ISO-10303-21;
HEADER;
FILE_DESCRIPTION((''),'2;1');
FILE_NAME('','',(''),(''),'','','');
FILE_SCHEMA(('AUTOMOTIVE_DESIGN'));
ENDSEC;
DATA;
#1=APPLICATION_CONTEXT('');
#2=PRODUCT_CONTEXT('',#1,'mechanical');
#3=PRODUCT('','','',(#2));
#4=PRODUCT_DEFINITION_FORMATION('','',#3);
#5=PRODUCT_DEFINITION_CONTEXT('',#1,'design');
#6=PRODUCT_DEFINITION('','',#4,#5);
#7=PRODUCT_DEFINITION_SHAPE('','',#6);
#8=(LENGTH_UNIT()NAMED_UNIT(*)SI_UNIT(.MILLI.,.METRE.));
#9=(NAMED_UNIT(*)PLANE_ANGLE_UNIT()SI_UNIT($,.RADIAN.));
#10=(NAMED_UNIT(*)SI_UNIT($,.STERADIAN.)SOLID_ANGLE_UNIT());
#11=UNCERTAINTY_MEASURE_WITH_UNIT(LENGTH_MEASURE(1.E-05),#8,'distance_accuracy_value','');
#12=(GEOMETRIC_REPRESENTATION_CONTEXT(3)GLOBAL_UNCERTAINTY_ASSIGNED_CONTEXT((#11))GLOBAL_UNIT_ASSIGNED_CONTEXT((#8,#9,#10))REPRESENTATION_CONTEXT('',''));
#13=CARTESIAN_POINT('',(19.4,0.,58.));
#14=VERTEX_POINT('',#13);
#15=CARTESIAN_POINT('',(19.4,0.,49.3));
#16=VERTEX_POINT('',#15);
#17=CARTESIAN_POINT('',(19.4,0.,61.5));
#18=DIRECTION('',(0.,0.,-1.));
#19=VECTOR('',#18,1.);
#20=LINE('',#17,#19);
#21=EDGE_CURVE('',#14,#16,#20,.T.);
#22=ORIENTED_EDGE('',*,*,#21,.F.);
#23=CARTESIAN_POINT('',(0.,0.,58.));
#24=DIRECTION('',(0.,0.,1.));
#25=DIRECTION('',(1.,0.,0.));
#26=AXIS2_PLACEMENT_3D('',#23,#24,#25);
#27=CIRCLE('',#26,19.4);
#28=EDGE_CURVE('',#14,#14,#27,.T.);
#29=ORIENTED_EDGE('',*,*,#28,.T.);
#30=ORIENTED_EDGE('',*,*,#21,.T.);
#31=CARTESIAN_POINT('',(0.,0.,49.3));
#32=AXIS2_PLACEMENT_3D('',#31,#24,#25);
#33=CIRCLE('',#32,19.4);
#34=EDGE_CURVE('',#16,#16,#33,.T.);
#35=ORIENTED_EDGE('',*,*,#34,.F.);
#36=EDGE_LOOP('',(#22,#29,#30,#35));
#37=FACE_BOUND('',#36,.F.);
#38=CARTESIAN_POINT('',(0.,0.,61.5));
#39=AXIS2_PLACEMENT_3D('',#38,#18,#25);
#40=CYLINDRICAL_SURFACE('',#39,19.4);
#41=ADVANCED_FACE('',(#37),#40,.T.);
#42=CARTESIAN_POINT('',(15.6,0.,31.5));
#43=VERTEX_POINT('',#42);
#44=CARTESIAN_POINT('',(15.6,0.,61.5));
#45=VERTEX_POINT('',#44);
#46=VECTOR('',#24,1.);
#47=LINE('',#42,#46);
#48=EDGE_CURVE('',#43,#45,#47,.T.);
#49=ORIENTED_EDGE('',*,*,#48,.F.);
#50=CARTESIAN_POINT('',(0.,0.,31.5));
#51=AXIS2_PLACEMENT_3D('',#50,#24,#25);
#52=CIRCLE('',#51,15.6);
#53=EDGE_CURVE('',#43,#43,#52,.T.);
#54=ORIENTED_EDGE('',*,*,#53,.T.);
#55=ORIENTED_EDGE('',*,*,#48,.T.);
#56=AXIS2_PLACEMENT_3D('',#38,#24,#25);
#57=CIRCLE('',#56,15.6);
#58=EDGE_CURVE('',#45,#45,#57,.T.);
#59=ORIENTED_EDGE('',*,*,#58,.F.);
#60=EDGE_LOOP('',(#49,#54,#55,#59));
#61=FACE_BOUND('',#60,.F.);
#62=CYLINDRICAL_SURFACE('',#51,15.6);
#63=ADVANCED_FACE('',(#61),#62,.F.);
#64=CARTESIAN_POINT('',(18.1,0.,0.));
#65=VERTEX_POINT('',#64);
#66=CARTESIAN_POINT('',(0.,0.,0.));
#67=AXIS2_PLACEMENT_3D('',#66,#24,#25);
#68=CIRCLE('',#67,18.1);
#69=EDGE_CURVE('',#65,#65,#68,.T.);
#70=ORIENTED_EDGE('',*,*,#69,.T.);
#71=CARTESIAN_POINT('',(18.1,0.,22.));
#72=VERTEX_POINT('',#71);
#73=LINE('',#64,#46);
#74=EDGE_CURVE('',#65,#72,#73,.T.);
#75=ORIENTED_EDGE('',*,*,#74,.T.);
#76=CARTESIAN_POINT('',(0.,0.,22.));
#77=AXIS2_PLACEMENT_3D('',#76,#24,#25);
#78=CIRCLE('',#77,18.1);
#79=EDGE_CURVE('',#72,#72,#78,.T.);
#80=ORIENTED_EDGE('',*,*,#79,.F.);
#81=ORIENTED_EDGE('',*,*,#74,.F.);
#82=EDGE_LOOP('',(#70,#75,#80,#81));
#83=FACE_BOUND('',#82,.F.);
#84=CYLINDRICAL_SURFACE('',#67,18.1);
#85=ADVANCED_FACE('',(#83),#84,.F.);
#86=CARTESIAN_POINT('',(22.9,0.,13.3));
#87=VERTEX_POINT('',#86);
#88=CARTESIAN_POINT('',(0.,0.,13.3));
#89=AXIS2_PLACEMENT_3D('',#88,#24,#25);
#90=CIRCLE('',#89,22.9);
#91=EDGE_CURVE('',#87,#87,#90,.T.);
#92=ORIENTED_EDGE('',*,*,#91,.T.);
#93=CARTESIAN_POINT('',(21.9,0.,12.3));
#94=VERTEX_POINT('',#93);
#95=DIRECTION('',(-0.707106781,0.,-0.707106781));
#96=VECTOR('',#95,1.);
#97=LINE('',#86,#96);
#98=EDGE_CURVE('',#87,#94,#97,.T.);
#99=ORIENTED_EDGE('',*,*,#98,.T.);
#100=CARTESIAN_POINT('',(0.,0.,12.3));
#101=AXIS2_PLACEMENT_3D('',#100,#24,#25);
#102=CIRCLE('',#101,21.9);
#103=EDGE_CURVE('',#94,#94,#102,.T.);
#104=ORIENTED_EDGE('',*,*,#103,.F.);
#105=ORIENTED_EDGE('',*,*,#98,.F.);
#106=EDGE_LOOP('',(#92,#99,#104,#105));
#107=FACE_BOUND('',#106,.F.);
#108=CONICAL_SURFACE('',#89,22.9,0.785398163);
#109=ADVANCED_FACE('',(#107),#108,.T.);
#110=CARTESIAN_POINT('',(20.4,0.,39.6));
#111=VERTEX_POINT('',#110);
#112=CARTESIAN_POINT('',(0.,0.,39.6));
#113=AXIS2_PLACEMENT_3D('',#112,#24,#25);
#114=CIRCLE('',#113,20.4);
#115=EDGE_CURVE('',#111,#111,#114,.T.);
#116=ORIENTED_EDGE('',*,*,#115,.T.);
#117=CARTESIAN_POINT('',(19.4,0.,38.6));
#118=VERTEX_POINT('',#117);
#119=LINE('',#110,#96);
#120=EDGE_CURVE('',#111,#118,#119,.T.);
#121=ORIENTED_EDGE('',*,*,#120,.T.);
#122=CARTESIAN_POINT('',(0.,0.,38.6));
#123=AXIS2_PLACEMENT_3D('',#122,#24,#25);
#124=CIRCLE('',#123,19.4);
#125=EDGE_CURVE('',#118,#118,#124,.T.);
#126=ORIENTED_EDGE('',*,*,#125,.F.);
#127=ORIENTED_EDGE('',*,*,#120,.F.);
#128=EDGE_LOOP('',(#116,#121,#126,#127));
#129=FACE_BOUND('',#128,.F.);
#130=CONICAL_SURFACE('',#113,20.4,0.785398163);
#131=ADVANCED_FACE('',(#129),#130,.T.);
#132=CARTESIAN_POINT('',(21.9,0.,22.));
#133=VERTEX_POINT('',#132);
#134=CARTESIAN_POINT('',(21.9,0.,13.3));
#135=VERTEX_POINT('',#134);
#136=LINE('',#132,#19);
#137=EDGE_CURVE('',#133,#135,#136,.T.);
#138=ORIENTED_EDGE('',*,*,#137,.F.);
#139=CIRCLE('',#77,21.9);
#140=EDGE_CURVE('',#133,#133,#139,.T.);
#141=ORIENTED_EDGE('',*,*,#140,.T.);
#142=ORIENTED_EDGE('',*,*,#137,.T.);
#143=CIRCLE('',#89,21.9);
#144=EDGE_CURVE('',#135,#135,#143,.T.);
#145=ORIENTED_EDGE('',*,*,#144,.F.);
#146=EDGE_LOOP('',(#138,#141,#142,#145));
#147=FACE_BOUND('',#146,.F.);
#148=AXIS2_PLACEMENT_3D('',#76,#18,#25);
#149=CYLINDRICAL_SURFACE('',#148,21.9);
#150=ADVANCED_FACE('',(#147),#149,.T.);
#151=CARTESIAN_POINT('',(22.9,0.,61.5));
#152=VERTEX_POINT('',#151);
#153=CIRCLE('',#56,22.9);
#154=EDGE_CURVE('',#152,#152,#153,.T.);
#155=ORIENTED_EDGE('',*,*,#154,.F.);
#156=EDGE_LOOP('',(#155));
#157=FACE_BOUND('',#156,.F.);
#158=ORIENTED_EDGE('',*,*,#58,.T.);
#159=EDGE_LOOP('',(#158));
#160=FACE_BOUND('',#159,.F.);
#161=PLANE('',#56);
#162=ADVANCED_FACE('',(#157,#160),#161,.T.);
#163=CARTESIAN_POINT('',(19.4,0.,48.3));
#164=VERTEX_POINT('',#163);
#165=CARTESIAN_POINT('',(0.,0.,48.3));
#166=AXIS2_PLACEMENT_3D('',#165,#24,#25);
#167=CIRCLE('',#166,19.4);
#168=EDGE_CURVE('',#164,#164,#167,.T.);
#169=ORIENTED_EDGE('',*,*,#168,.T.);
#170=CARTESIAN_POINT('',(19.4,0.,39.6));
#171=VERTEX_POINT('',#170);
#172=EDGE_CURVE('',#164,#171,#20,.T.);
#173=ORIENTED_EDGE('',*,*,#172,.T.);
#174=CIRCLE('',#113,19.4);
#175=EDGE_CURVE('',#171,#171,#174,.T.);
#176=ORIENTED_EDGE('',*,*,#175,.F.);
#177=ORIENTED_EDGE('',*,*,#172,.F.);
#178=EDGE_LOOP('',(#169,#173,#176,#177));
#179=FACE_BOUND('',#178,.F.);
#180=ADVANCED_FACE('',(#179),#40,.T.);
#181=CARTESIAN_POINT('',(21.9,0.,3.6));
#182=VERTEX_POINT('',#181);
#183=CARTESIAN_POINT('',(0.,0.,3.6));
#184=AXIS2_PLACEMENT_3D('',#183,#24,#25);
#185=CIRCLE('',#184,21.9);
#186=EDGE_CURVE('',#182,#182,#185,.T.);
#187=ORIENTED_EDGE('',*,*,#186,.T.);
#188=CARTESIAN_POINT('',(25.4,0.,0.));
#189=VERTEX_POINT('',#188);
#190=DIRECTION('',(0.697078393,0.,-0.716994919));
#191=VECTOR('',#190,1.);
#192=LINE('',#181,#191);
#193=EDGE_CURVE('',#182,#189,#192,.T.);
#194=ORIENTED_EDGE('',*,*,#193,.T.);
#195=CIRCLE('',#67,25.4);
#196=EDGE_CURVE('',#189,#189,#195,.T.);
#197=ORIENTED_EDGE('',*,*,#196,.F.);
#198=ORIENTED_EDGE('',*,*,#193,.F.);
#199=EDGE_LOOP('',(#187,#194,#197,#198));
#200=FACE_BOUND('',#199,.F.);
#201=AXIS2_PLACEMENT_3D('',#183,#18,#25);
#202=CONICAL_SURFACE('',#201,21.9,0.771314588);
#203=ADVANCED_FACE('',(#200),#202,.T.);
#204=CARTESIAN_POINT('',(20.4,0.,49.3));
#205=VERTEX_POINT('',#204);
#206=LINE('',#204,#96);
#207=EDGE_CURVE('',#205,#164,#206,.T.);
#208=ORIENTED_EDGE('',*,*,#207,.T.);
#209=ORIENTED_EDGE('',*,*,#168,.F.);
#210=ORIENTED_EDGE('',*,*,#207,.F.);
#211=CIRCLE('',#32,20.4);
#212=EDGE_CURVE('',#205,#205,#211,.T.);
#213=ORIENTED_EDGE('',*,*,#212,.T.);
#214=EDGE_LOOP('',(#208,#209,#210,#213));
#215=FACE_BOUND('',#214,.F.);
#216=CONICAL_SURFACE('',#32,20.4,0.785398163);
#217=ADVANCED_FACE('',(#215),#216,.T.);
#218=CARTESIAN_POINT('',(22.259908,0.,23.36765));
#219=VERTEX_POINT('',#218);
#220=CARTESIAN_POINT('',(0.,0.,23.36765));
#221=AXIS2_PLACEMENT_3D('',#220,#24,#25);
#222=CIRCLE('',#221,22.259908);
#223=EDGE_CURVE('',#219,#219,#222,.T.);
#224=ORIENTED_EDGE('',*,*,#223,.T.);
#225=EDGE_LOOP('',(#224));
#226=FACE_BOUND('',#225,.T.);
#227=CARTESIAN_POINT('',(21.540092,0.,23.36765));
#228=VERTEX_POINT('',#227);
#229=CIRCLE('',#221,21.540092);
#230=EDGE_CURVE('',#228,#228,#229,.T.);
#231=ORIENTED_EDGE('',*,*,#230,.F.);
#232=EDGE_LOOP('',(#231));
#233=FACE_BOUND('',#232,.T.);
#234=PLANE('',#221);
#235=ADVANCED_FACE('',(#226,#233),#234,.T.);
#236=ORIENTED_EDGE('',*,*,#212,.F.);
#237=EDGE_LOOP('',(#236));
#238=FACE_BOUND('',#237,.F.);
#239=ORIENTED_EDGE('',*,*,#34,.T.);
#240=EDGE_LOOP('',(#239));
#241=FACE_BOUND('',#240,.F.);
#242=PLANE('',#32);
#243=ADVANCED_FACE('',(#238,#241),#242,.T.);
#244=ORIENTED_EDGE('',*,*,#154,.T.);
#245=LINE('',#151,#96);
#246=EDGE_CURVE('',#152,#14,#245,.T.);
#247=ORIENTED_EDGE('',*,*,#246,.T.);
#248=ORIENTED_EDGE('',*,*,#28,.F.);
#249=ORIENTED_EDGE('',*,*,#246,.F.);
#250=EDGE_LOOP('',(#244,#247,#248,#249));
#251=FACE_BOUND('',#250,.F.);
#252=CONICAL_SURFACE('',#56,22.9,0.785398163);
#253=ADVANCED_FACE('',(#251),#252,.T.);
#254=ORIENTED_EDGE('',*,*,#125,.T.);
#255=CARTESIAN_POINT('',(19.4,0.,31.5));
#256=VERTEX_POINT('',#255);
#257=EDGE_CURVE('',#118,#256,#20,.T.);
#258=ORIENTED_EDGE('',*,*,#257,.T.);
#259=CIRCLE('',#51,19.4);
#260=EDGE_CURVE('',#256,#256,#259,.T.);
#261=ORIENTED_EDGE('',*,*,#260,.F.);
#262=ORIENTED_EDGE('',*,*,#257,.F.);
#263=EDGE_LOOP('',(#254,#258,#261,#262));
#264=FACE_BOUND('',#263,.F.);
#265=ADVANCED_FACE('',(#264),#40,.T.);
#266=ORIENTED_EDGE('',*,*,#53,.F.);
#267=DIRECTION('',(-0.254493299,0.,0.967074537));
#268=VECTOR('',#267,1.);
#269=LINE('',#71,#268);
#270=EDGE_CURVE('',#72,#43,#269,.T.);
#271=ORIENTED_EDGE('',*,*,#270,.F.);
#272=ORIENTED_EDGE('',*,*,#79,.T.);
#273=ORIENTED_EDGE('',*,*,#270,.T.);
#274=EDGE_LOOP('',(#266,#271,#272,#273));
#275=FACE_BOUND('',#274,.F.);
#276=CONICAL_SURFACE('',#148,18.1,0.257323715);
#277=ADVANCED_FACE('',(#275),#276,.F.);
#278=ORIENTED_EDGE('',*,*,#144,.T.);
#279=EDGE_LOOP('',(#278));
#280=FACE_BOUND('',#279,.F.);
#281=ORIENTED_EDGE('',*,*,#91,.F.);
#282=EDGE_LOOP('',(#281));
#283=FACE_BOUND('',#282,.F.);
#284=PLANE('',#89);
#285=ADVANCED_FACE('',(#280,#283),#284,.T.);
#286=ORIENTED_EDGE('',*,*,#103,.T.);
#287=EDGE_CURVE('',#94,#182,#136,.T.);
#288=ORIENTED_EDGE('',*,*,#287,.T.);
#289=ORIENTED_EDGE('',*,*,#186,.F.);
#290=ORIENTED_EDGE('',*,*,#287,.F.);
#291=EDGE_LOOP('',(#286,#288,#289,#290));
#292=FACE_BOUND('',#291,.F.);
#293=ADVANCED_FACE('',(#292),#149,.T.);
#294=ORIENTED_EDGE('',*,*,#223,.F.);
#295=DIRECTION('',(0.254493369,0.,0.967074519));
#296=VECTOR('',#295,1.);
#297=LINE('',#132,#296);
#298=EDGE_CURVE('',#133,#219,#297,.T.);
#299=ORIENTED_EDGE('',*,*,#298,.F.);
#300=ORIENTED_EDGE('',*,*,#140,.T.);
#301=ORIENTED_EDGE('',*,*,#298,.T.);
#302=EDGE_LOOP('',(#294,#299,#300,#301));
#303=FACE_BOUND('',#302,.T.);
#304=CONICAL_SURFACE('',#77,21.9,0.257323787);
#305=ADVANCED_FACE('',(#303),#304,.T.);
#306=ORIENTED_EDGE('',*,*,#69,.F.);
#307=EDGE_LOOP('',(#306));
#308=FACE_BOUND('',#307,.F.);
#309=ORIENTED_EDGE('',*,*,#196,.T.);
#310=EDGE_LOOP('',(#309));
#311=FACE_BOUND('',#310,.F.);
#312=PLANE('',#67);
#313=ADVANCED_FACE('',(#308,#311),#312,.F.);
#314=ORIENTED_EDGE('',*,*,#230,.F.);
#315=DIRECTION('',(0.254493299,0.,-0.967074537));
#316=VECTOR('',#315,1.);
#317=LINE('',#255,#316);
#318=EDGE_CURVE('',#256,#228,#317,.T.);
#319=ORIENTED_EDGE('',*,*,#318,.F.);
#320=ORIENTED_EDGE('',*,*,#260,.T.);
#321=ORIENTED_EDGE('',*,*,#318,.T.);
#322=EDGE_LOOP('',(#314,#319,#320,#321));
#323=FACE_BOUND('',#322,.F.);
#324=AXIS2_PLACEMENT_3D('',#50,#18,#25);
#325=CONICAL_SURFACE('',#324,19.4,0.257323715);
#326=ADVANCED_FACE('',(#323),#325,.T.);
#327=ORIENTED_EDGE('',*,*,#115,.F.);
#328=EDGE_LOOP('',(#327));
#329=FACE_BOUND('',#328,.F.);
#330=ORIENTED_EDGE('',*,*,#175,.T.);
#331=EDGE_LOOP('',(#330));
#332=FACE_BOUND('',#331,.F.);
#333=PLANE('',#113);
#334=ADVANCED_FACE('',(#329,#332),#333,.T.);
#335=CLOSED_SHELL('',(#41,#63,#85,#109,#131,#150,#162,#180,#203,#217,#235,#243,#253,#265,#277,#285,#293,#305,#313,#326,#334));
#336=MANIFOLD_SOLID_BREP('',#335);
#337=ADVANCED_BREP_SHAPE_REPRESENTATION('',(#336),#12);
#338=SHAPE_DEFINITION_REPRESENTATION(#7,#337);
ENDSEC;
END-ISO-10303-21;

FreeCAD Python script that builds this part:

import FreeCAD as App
import Part
import Sketcher

V = App.Vector
Q = App.Units.Quantity


def add_polygon(sketch, points):
    """Adds a closed chain of lines whose ends are joined by coincident constraints."""
    first, n = sketch.GeometryCount, len(points)
    for a, b in zip(points, points[1:] + points[:1]):
        sketch.addGeometry(Part.LineSegment(App.Vector(*a, 0), App.Vector(*b, 0)), False)
    for i in range(n):
        sketch.addConstraint(Sketcher.Constraint("Coincident", first + i, 2, first + (i + 1) % n, 1))

doc = App.newDocument("Part")
body = doc.addObject("PartDesign::Body", "Body")

# Sketch on XZ plane
sketch1 = body.newObject("Sketcher::SketchObject", "Sketch")
sketch1.AttachmentSupport = (doc.getObject("XZ_Plane"), [""])
sketch1.MapMode = "FlatFace"
add_polygon(sketch1, [(19.4, 31.5), (19.4, 61.5), (15.6, 61.5), (15.6, 31.5), (18.1, 22), (18.1, 0), (21.9, 0), (21.9, 22)])  # lines 0-7
sketch1.addConstraint([
    Sketcher.Constraint("Vertical", 0),
    Sketcher.Constraint("Horizontal", 1),
    Sketcher.Constraint("Vertical", 2),
    Sketcher.Constraint("Vertical", 4),
    Sketcher.Constraint("Horizontal", 5),
    Sketcher.Constraint("Vertical", 6),
    Sketcher.Constraint("PointOnObject", 4, 2, -1),
    Sketcher.Constraint("Parallel", 3, 7),
    Sketcher.Constraint("Horizontal", 3, 2, 6, 2),
    Sketcher.Constraint("Horizontal", 2, 2, 7, 2),
    Sketcher.Constraint("DistanceY", 0, 1, 0, 2, Q("30 mm")),
    Sketcher.Constraint("DistanceY", 4, 2, 4, 1, Q("22 mm")),
    Sketcher.Constraint("DistanceX", 1, 2, 1, 1, Q("3.8 mm")),
    Sketcher.Constraint("DistanceX", -1, 1, 0, 2, Q("19.4 mm")),
    Sketcher.Constraint("DistanceY", -1, 1, 0, 2, Q("61.5 mm")),
    Sketcher.Constraint("DistanceX", -1, 1, 3, 2, Q("18.1 mm")),
])
revolution = body.newObject("PartDesign::Revolution", "Revolution")
revolution.Profile = sketch1
revolution.ReferenceAxis = (sketch1, ["V_Axis"])
revolution.Angle = 360

# Sketch on XZ plane
sketch2 = body.newObject("Sketcher::SketchObject", "Sketch001")
sketch2.AttachmentSupport = (doc.getObject("XZ_Plane"), [""])
sketch2.MapMode = "FlatFace"
add_polygon(sketch2, [(22.9, 61.5), (19.4, 61.5), (19.4, 58)])  # lines 0-2
add_polygon(sketch2, [(25.4, 0), (21.9, 3.6), (21.9, 0)])  # lines 3-5
add_polygon(sketch2, [(22.9, 13.3), (21.9, 13.3), (21.9, 12.3)])  # lines 6-8
add_polygon(sketch2, [(21.5, 23.4), (21.9, 22), (22.3, 23.4)])  # lines 9-11
add_polygon(sketch2, [(20.4, 49.3), (19.4, 49.3), (19.4, 48.3)])  # lines 12-14
add_polygon(sketch2, [(20.4, 39.6), (19.4, 39.6), (19.4, 38.6)])  # lines 15-17
sketch2.addConstraint([
    Sketcher.Constraint("Horizontal", 0),
    Sketcher.Constraint("Vertical", 1),
    Sketcher.Constraint("Vertical", 4),
    Sketcher.Constraint("Horizontal", 5),
    Sketcher.Constraint("Horizontal", 6),
    Sketcher.Constraint("Vertical", 7),
    Sketcher.Constraint("Horizontal", 11),
    Sketcher.Constraint("Horizontal", 12),
    Sketcher.Constraint("Vertical", 13),
    Sketcher.Constraint("Horizontal", 15),
    Sketcher.Constraint("Vertical", 16),
    Sketcher.Constraint("PointOnObject", 4, 2, -1),
    Sketcher.Constraint("Parallel", 2, 8),
    Sketcher.Constraint("Parallel", 8, 14),
    Sketcher.Constraint("Parallel", 14, 17),
    Sketcher.Constraint("Vertical", 4, 2, 6, 2),
    Sketcher.Constraint("Vertical", 2, 2, 8, 2),
    Sketcher.Constraint("Vertical", 7, 2, 9, 2),
    Sketcher.Constraint("Vertical", 1, 2, 12, 2),
    Sketcher.Constraint("Vertical", 13, 2, 15, 2),
    Sketcher.Constraint("Vertical", 14, 2, 17, 2),
    Sketcher.Constraint("Equal", 0, 5),
    Sketcher.Constraint("Equal", 6, 12),
    Sketcher.Constraint("Equal", 5, 1),
    Sketcher.Constraint("Equal", 8, 9),
    Sketcher.Constraint("Equal", 9, 10),
    Sketcher.Constraint("DistanceX", 6, 2, 6, 1, Q("1 mm")),
    Sketcher.Constraint("DistanceX", 0, 2, 0, 1, Q("3.5 mm")),
    Sketcher.Constraint("DistanceY", 4, 2, 4, 1, Q("3.6 mm")),
    Sketcher.Constraint("DistanceY", -1, 1, 1, 2, Q("58 mm")),
    Sketcher.Constraint("DistanceY", -1, 1, 9, 2, Q("22 mm")),
    Sketcher.Constraint("DistanceX", -1, 1, 0, 2, Q("19.4 mm")),
    Sketcher.Constraint("DistanceY", -1, 1, 6, 2, Q("13.3 mm")),
    Sketcher.Constraint("DistanceY", -1, 1, 12, 2, Q("49.3 mm")),
    Sketcher.Constraint("DistanceY", -1, 1, 15, 2, Q("39.6 mm")),
    Sketcher.Constraint("DistanceX", 11, 2, 11, 1, Q("0.719816 mm")),
])
revolution2 = body.newObject("PartDesign::Revolution", "Revolution001")
revolution2.Profile = sketch2
revolution2.ReferenceAxis = (sketch2, ["V_Axis"])
revolution2.Angle = 360

doc.recompute()
